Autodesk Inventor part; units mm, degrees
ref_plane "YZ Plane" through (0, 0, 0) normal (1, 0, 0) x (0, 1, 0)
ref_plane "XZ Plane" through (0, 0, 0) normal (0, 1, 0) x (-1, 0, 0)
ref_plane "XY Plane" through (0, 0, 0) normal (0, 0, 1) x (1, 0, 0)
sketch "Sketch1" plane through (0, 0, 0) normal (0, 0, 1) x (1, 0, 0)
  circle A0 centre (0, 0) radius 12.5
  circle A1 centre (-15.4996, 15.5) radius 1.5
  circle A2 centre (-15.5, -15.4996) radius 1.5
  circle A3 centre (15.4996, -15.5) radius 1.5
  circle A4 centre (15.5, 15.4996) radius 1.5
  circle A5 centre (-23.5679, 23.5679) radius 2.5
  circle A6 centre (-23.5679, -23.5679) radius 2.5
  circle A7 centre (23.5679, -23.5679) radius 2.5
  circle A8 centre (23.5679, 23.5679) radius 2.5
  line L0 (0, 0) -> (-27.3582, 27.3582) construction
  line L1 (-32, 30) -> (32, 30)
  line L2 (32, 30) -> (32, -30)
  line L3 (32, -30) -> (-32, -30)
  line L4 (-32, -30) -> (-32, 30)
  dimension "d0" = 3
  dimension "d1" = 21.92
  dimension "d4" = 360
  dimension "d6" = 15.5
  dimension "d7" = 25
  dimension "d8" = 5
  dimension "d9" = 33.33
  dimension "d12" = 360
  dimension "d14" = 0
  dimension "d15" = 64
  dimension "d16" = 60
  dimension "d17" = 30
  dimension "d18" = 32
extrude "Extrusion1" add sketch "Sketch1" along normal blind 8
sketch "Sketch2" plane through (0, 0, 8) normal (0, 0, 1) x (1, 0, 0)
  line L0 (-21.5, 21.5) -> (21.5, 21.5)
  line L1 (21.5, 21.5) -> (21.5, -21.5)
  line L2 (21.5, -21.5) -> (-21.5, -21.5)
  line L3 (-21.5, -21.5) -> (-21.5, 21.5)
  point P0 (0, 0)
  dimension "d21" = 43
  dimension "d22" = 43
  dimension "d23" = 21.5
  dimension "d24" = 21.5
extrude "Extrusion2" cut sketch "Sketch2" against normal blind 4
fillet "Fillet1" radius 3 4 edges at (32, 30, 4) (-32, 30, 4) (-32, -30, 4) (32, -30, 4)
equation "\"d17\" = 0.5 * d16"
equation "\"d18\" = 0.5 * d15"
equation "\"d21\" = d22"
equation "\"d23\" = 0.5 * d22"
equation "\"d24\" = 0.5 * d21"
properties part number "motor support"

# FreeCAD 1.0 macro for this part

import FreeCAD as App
import Part
import Sketcher
from FreeCAD import Vector


def edges_at(feature, points):
    """Names of the edges that pass closest to the given points."""
    edges = feature.Shape.Edges
    near = lambda p: min(range(len(edges)), key=lambda i: edges[i].distToShape(Part.Vertex(*p))[0])
    return sorted({f"Edge{near(p) + 1}" for p in points})

doc = App.newDocument("Part")
body = doc.addObject("PartDesign::Body", "Body")

sketch1 = body.newObject("Sketcher::SketchObject", "Sketch")
sketch1.AttachmentSupport = (doc.getObject("XY_Plane"), [""])
sketch1.MapMode = "FlatFace"
sketch1.addGeometry(Part.LineSegment(Vector(32, 30, 0), Vector(-32, 30, 0)), False)
sketch1.addGeometry(Part.LineSegment(Vector(-32, 30, 0), Vector(-32, -30, 0)), False)
sketch1.addGeometry(Part.LineSegment(Vector(-32, -30, 0), Vector(32, -30, 0)), False)
sketch1.addGeometry(Part.LineSegment(Vector(32, -30, 0), Vector(32, 30, 0)), False)
sketch1.addGeometry(Part.Circle(Vector(-23.6, -23.6, 0), Vector(0, 0, 1), 2.5), False)
sketch1.addGeometry(Part.Circle(Vector(-15.5, -15.5, 0), Vector(0, 0, 1), 1.5), False)
sketch1.addGeometry(Part.Circle(Vector(15.5, -15.5, 0), Vector(0, 0, 1), 1.5), False)
sketch1.addGeometry(Part.Circle(Vector(23.6, -23.6, 0), Vector(0, 0, 1), 2.5), False)
sketch1.addGeometry(Part.Circle(Vector(-23.6, 23.6, 0), Vector(0, 0, 1), 2.5), False)
sketch1.addGeometry(Part.Circle(Vector(-15.5, 15.5, 0), Vector(0, 0, 1), 1.5), False)
sketch1.addGeometry(Part.Circle(Vector(0, 0, 0), Vector(0, 0, 1), 12.5), False)
sketch1.addGeometry(Part.Circle(Vector(15.5, 15.5, 0), Vector(0, 0, 1), 1.5), False)
sketch1.addGeometry(Part.Circle(Vector(23.6, 23.6, 0), Vector(0, 0, 1), 2.5), False)
sketch1.addConstraint(Sketcher.Constraint("Coincident", 0, 2, 1, 1))
sketch1.addConstraint(Sketcher.Constraint("Coincident", 1, 2, 2, 1))
sketch1.addConstraint(Sketcher.Constraint("Coincident", 2, 2, 3, 1))
sketch1.addConstraint(Sketcher.Constraint("Coincident", 3, 2, 0, 1))
sketch1.addConstraint(Sketcher.Constraint("Horizontal", 0))
sketch1.addConstraint(Sketcher.Constraint("Vertical", 1))
sketch1.addConstraint(Sketcher.Constraint("Horizontal", 2))
sketch1.addConstraint(Sketcher.Constraint("Vertical", 3))
sketch1.addConstraint(Sketcher.Constraint("Coincident", 10, 3, -1, 1))
sketch1.addConstraint(Sketcher.Constraint("Equal", 5, 6))
sketch1.addConstraint(Sketcher.Constraint("Equal", 4, 7))
sketch1.addConstraint(Sketcher.Constraint("Equal", 7, 8))
sketch1.addConstraint(Sketcher.Constraint("Equal", 6, 9))
sketch1.addConstraint(Sketcher.Constraint("Equal", 9, 11))
sketch1.addConstraint(Sketcher.Constraint("Equal", 8, 12))
sketch1.addConstraint(Sketcher.Constraint("Symmetric", 7, 3, 8, 3, -1, 1))
sketch1.addConstraint(Sketcher.Constraint("Symmetric", 6, 3, 9, 3, -1, 1))
sketch1.addConstraint(Sketcher.Constraint("Symmetric", 5, 3, 11, 3, -1, 1))
sketch1.addConstraint(Sketcher.Constraint("Symmetric", 4, 3, 12, 3, -1, 1))
sketch1.addConstraint(Sketcher.Constraint("Symmetric", 0, 2, 2, 2, -1, 1))
sketch1.addConstraint(Sketcher.Constraint("Symmetric", 4, 3, 7, 3, -2))
sketch1.addConstraint(Sketcher.Constraint("Diameter", 4, 5.0))
sketch1.addConstraint(Sketcher.Constraint("Diameter", 5, 3.0))
sketch1.addConstraint(Sketcher.Constraint("Diameter", 10, 25.0))
sketch1.addConstraint(Sketcher.Constraint("DistanceX", 0, 2, 0, 1, 64.0))
sketch1.addConstraint(Sketcher.Constraint("DistanceY", 1, 2, 1, 1, 60.0))
sketch1.addConstraint(Sketcher.Constraint("DistanceX", 5, 3, -1, 1, 15.5))
sketch1.addConstraint(Sketcher.Constraint("DistanceY", 6, 3, -1, 1, 15.5))
sketch1.addConstraint(Sketcher.Constraint("DistanceY", 5, 3, -1, 1, 15.4996))
sketch1.addConstraint(Sketcher.Constraint("DistanceX", -1, 1, 6, 3, 15.4996))
sketch1.addConstraint(Sketcher.Constraint("DistanceX", 4, 3, -1, 1, 23.568))
sketch1.addConstraint(Sketcher.Constraint("DistanceY", 4, 3, -1, 1, 23.568))
pad1 = body.newObject("PartDesign::Pad", "Pad")
pad1.Profile = sketch1
pad1.Length = 8

sketch2 = body.newObject("Sketcher::SketchObject", "Sketch001")
sketch2.AttachmentSupport = (doc.getObject("XY_Plane"), [""])
sketch2.MapMode = "FlatFace"
sketch2.AttachmentOffset = App.Placement(Vector(0, 0, 8), App.Rotation())
sketch2.addGeometry(Part.LineSegment(Vector(22, 22, 0), Vector(-22, 22, 0)), False)
sketch2.addGeometry(Part.LineSegment(Vector(-22, 22, 0), Vector(-22, -22, 0)), False)
sketch2.addGeometry(Part.LineSegment(Vector(-22, -22, 0), Vector(22, -22, 0)), False)
sketch2.addGeometry(Part.LineSegment(Vector(22, -22, 0), Vector(22, 22, 0)), False)
sketch2.addConstraint(Sketcher.Constraint("Coincident", 0, 2, 1, 1))
sketch2.addConstraint(Sketcher.Constraint("Coincident", 1, 2, 2, 1))
sketch2.addConstraint(Sketcher.Constraint("Coincident", 2, 2, 3, 1))
sketch2.addConstraint(Sketcher.Constraint("Coincident", 3, 2, 0, 1))
sketch2.addConstraint(Sketcher.Constraint("Horizontal", 0))
sketch2.addConstraint(Sketcher.Constraint("Vertical", 1))
sketch2.addConstraint(Sketcher.Constraint("Horizontal", 2))
sketch2.addConstraint(Sketcher.Constraint("Vertical", 3))
sketch2.addConstraint(Sketcher.Constraint("Symmetric", 0, 2, 2, 2, -1, 1))
sketch2.addConstraint(Sketcher.Constraint("Equal", 2, 1))
sketch2.addConstraint(Sketcher.Constraint("DistanceX", 0, 2, 0, 1, 43.0))
pocket1 = body.newObject("PartDesign::Pocket", "Pocket")
pocket1.Profile = sketch2
pocket1.Length = 4
doc.recompute()

fillet = body.newObject("PartDesign::Fillet", "Fillet")
fillet.Base = (pocket1, edges_at(pocket1, [
    (32, 30, 4),
    (-32, 30, 4),
    (-32, -30, 4),
    (32, -30, 4),
]))
fillet.Radius = 3

doc.recompute()
